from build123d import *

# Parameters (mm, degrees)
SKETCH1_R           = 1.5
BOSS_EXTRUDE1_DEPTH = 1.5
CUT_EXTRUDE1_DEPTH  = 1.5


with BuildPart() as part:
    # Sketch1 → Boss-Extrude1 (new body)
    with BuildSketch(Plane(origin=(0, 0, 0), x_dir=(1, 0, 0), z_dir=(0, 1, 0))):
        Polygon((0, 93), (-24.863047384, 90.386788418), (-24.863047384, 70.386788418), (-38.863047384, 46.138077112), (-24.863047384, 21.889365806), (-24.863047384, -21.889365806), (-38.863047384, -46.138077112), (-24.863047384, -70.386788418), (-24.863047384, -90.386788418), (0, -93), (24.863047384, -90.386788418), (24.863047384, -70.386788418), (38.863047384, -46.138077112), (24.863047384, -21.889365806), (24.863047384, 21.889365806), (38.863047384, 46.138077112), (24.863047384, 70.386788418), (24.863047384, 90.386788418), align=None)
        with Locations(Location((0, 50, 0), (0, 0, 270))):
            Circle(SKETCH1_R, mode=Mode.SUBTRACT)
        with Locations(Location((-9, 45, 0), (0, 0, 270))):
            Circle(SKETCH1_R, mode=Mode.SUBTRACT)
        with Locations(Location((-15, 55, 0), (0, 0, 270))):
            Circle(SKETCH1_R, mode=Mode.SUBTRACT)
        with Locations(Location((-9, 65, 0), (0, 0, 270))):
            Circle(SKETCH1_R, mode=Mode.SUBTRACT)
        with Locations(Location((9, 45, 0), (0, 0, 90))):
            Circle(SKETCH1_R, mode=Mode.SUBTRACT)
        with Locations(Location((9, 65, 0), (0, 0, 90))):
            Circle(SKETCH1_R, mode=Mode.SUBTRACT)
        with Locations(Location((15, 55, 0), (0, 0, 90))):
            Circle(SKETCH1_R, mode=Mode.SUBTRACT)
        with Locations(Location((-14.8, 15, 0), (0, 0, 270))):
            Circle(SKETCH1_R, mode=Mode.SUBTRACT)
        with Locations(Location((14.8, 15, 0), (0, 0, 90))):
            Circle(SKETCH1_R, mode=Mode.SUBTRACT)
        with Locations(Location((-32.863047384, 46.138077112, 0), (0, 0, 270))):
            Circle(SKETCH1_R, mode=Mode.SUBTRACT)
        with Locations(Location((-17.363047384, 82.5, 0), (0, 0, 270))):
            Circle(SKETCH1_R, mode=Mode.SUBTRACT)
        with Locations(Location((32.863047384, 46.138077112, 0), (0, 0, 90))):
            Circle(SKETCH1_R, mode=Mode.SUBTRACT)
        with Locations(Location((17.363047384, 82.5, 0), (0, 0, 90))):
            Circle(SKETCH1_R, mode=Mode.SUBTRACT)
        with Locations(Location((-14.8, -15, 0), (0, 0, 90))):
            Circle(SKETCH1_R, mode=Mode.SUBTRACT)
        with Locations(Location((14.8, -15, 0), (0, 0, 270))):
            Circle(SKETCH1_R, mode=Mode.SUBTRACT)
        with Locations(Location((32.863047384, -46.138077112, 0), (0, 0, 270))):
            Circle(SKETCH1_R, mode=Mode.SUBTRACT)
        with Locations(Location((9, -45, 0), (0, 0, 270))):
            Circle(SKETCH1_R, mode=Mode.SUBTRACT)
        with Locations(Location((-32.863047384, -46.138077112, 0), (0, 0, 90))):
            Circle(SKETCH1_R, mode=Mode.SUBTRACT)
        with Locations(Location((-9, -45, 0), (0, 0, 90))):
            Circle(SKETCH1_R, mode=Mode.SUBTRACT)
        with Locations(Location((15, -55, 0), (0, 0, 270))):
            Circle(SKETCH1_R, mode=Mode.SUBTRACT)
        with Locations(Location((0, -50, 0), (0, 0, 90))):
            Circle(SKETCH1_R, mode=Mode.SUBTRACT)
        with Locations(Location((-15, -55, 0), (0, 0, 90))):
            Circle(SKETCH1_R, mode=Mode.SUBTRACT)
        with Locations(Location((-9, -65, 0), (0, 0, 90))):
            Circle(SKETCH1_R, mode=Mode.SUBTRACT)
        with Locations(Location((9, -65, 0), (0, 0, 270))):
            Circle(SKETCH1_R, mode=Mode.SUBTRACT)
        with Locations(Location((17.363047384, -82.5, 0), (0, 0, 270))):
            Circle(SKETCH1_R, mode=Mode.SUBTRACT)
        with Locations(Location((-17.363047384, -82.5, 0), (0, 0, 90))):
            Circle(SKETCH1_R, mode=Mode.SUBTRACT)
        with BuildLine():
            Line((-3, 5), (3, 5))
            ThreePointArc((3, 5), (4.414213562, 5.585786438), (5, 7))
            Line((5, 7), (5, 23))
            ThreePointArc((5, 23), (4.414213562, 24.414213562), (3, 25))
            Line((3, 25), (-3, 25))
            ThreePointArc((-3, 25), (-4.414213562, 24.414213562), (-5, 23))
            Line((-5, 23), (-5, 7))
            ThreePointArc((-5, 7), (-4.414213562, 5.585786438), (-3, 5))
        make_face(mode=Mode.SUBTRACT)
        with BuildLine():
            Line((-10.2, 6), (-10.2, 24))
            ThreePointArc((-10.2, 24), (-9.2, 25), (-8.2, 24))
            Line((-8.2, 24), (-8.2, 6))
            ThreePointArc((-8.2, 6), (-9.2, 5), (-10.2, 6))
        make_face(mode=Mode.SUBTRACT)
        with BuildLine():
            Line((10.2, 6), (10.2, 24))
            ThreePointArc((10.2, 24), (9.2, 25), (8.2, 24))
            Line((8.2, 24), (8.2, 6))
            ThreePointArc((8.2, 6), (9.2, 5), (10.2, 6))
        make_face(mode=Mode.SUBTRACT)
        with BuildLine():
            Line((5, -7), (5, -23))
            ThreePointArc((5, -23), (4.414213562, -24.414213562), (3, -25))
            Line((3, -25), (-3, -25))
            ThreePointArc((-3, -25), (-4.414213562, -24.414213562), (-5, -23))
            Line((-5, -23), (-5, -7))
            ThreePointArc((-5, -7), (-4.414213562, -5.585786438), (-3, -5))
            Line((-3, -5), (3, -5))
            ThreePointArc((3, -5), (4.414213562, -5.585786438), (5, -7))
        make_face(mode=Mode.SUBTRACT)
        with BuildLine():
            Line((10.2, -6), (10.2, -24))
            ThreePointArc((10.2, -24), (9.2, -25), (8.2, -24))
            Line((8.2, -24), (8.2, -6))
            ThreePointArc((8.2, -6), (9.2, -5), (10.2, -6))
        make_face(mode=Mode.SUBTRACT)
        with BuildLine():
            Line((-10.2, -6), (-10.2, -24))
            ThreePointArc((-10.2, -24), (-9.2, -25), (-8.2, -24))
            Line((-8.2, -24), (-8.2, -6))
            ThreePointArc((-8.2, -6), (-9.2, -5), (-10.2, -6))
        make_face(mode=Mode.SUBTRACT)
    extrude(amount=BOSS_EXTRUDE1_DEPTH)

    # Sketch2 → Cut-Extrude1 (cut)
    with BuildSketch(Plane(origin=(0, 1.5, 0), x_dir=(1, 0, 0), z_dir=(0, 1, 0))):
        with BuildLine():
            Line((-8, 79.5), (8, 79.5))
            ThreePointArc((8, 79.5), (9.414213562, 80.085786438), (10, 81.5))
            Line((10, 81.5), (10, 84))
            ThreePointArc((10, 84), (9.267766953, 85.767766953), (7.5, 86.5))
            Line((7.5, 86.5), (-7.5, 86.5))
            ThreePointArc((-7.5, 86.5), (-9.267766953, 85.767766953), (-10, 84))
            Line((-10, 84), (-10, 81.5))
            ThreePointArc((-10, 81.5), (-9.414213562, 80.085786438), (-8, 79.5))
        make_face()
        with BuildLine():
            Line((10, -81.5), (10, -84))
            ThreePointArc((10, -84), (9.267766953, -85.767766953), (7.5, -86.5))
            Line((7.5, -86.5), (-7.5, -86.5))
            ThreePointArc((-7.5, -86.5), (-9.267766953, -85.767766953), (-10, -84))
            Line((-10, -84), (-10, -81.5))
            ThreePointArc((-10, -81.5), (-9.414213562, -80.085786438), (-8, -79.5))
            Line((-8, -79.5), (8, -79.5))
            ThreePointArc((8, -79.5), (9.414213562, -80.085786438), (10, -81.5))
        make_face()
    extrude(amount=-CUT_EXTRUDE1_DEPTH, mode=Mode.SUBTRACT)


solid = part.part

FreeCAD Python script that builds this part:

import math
import FreeCAD as App
import Part
import Sketcher
Q = App.Units.Quantity


def add_polygon(sketch, points):
    """Adds a closed chain of lines whose ends are joined by coincident constraints."""
    first, n = sketch.GeometryCount, len(points)
    for a, b in zip(points, points[1:] + points[:1]):
        sketch.addGeometry(Part.LineSegment(App.Vector(*a, 0), App.Vector(*b, 0)), False)
    for i in range(n):
        sketch.addConstraint(Sketcher.Constraint("Coincident", first + i, 2, first + (i + 1) % n, 1))

doc = App.newDocument("Part")
body = doc.addObject("PartDesign::Body", "Body")

sketch1 = doc.addObject("Sketcher::SketchObject", "Sketch")
body.addObject(sketch1)
sketch1.AttachmentSupport = (doc.XZ_Plane, [""])
sketch1.MapMode = "FlatFace"
add_polygon(sketch1, [(0, -93), (-24.9, -90.4), (-24.9, -70.4), (-38.9, -46.1), (-24.9, -21.9), (-24.9, 21.9), (-38.9, 46.1), (-24.9, 70.4), (-24.9, 90.4), (0, 93), (24.9, 90.4), (24.9, 70.4), (38.9, 46.1), (24.9, 21.9), (24.9, -21.9), (38.9, -46.1), (24.9, -70.4), (24.9, -90.4)])
sketch1.addGeometry(Part.Circle(App.Vector(-17.4, 82.5, 0), App.Vector(0, 0, 1), 1.5), False)
sketch1.addGeometry(Part.Circle(App.Vector(-32.9, 46.1, 0), App.Vector(0, 0, 1), 1.5), False)
sketch1.addGeometry(Part.Circle(App.Vector(-9, 65, 0), App.Vector(0, 0, 1), 1.5), False)
sketch1.addGeometry(Part.Circle(App.Vector(-15, 55, 0), App.Vector(0, 0, 1), 1.5), False)
sketch1.addGeometry(Part.Circle(App.Vector(-9, 45, 0), App.Vector(0, 0, 1), 1.5), False)
sketch1.addGeometry(Part.Circle(App.Vector(-14.8, 15, 0), App.Vector(0, 0, 1), 1.5), False)
sketch1.addGeometry(Part.LineSegment(App.Vector(-10.2, 24, 0), App.Vector(-10.2, 6, 0)), False)
sketch1.addGeometry(Part.ArcOfCircle(Part.Circle(App.Vector(-9.2, 6, 0), App.Vector(0, 0, 1), 1), math.radians(180), math.radians(360)), False)
sketch1.addGeometry(Part.LineSegment(App.Vector(-8.2, 6, 0), App.Vector(-8.2, 24, 0)), False)
sketch1.addGeometry(Part.ArcOfCircle(Part.Circle(App.Vector(-9.2, 24, 0), App.Vector(0, 0, 1), 1), math.radians(0), math.radians(180)), False)
sketch1.addGeometry(Part.Circle(App.Vector(9, 65, 0), App.Vector(0, 0, 1), 1.5), False)
sketch1.addGeometry(Part.Circle(App.Vector(0, 50, 0), App.Vector(0, 0, 1), 1.5), False)
sketch1.addGeometry(Part.Circle(App.Vector(15, 55, 0), App.Vector(0, 0, 1), 1.5), False)
sketch1.addGeometry(Part.Circle(App.Vector(9, 45, 0), App.Vector(0, 0, 1), 1.5), False)
sketch1.addGeometry(Part.Circle(App.Vector(17.4, 82.5, 0), App.Vector(0, 0, 1), 1.5), False)
sketch1.addGeometry(Part.Circle(App.Vector(32.9, 46.1, 0), App.Vector(0, 0, 1), 1.5), False)
sketch1.addGeometry(Part.ArcOfCircle(Part.Circle(App.Vector(3, 7, 0), App.Vector(0, 0, 1), 2), math.radians(-90), math.radians(0)), False)
sketch1.addGeometry(Part.LineSegment(App.Vector(5, 7, 0), App.Vector(5, 23, 0)), False)
sketch1.addGeometry(Part.ArcOfCircle(Part.Circle(App.Vector(3, 23, 0), App.Vector(0, 0, 1), 2), math.radians(0), math.radians(90)), False)
sketch1.addGeometry(Part.LineSegment(App.Vector(3, 25, 0), App.Vector(-3, 25, 0)), False)
sketch1.addGeometry(Part.ArcOfCircle(Part.Circle(App.Vector(-3, 23, 0), App.Vector(0, 0, 1), 2), math.radians(90), math.radians(180)), False)
sketch1.addGeometry(Part.LineSegment(App.Vector(-5, 23, 0), App.Vector(-5, 7, 0)), False)
sketch1.addGeometry(Part.ArcOfCircle(Part.Circle(App.Vector(-3, 7, 0), App.Vector(0, 0, 1), 2), math.radians(-180), math.radians(-90)), False)
sketch1.addGeometry(Part.LineSegment(App.Vector(-3, 5, 0), App.Vector(3, 5, 0)), False)
sketch1.addGeometry(Part.ArcOfCircle(Part.Circle(App.Vector(9.2, 6, 0), App.Vector(0, 0, 1), 1), math.radians(180), math.radians(360)), False)
sketch1.addGeometry(Part.LineSegment(App.Vector(10.2, 6, 0), App.Vector(10.2, 24, 0)), False)
sketch1.addGeometry(Part.ArcOfCircle(Part.Circle(App.Vector(9.2, 24, 0), App.Vector(0, 0, 1), 1), math.radians(0), math.radians(180)), False)
sketch1.addGeometry(Part.LineSegment(App.Vector(8.2, 24, 0), App.Vector(8.2, 6, 0)), False)
sketch1.addGeometry(Part.Circle(App.Vector(14.8, 15, 0), App.Vector(0, 0, 1), 1.5), False)
sketch1.addGeometry(Part.Circle(App.Vector(-14.8, -15, 0), App.Vector(0, 0, 1), 1.5), False)
sketch1.addGeometry(Part.ArcOfCircle(Part.Circle(App.Vector(-9.2, -6, 0), App.Vector(0, 0, 1), 1), math.radians(0), math.radians(180)), False)
sketch1.addGeometry(Part.LineSegment(App.Vector(-10.2, -6, 0), App.Vector(-10.2, -24, 0)), False)
sketch1.addGeometry(Part.ArcOfCircle(Part.Circle(App.Vector(-9.2, -24, 0), App.Vector(0, 0, 1), 1), math.radians(180), math.radians(360)), False)
sketch1.addGeometry(Part.LineSegment(App.Vector(-8.2, -24, 0), App.Vector(-8.2, -6, 0)), False)
sketch1.addGeometry(Part.Circle(App.Vector(-32.9, -46.1, 0), App.Vector(0, 0, 1), 1.5), False)
sketch1.addGeometry(Part.Circle(App.Vector(-17.4, -82.5, 0), App.Vector(0, 0, 1), 1.5), False)
sketch1.addGeometry(Part.Circle(App.Vector(-9, -45, 0), App.Vector(0, 0, 1), 1.5), False)
sketch1.addGeometry(Part.Circle(App.Vector(-15, -55, 0), App.Vector(0, 0, 1), 1.5), False)
sketch1.addGeometry(Part.Circle(App.Vector(-9, -65, 0), App.Vector(0, 0, 1), 1.5), False)
sketch1.addGeometry(Part.LineSegment(App.Vector(3, -5, 0), App.Vector(-3, -5, 0)), False)
sketch1.addGeometry(Part.ArcOfCircle(Part.Circle(App.Vector(-3, -7, 0), App.Vector(0, 0, 1), 2), math.radians(90), math.radians(180)), False)
sketch1.addGeometry(Part.LineSegment(App.Vector(-5, -7, 0), App.Vector(-5, -23, 0)), False)
sketch1.addGeometry(Part.ArcOfCircle(Part.Circle(App.Vector(-3, -23, 0), App.Vector(0, 0, 1), 2), math.radians(-180), math.radians(-90)), False)
sketch1.addGeometry(Part.LineSegment(App.Vector(-3, -25, 0), App.Vector(3, -25, 0)), False)
sketch1.addGeometry(Part.ArcOfCircle(Part.Circle(App.Vector(3, -23, 0), App.Vector(0, 0, 1), 2), math.radians(-90), math.radians(0)), False)
sketch1.addGeometry(Part.LineSegment(App.Vector(5, -23, 0), App.Vector(5, -7, 0)), False)
sketch1.addGeometry(Part.ArcOfCircle(Part.Circle(App.Vector(3, -7, 0), App.Vector(0, 0, 1), 2), math.radians(0), math.radians(90)), False)
sketch1.addGeometry(Part.LineSegment(App.Vector(10.2, -24, 0), App.Vector(10.2, -6, 0)), False)
sketch1.addGeometry(Part.ArcOfCircle(Part.Circle(App.Vector(9.2, -6, 0), App.Vector(0, 0, 1), 1), math.radians(0), math.radians(180)), False)
sketch1.addGeometry(Part.LineSegment(App.Vector(8.2, -6, 0), App.Vector(8.2, -24, 0)), False)
sketch1.addGeometry(Part.ArcOfCircle(Part.Circle(App.Vector(9.2, -24, 0), App.Vector(0, 0, 1), 1), math.radians(180), math.radians(360)), False)
sketch1.addGeometry(Part.Circle(App.Vector(14.8, -15, 0), App.Vector(0, 0, 1), 1.5), False)
sketch1.addGeometry(Part.Circle(App.Vector(0, -50, 0), App.Vector(0, 0, 1), 1.5), False)
sketch1.addGeometry(Part.Circle(App.Vector(9, -45, 0), App.Vector(0, 0, 1), 1.5), False)
sketch1.addGeometry(Part.Circle(App.Vector(15, -55, 0), App.Vector(0, 0, 1), 1.5), False)
sketch1.addGeometry(Part.Circle(App.Vector(9, -65, 0), App.Vector(0, 0, 1), 1.5), False)
sketch1.addGeometry(Part.Circle(App.Vector(32.9, -46.1, 0), App.Vector(0, 0, 1), 1.5), False)
sketch1.addGeometry(Part.Circle(App.Vector(17.4, -82.5, 0), App.Vector(0, 0, 1), 1.5), False)
sketch1.addConstraint([
    Sketcher.Constraint("Tangent", 24, 2, 25, 1),
    Sketcher.Constraint("Tangent", 25, 2, 26, 1),
    Sketcher.Constraint("Tangent", 26, 2, 27, 1),
    Sketcher.Constraint("Tangent", 27, 2, 24, 1),
    Sketcher.Constraint("Tangent", 34, 2, 35, 1),
    Sketcher.Constraint("Tangent", 35, 2, 36, 1),
    Sketcher.Constraint("Tangent", 36, 2, 37, 1),
    Sketcher.Constraint("Tangent", 37, 2, 38, 1),
    Sketcher.Constraint("Tangent", 38, 2, 39, 1),
    Sketcher.Constraint("Tangent", 39, 2, 40, 1),
    Sketcher.Constraint("Tangent", 40, 2, 41, 1),
    Sketcher.Constraint("Tangent", 41, 2, 34, 1),
    Sketcher.Constraint("Tangent", 42, 2, 43, 1),
    Sketcher.Constraint("Tangent", 43, 2, 44, 1),
    Sketcher.Constraint("Tangent", 44, 2, 45, 1),
    Sketcher.Constraint("Tangent", 45, 2, 42, 1),
    Sketcher.Constraint("Tangent", 48, 2, 49, 1),
    Sketcher.Constraint("Tangent", 49, 2, 50, 1),
    Sketcher.Constraint("Tangent", 50, 2, 51, 1),
    Sketcher.Constraint("Tangent", 51, 2, 48, 1),
    Sketcher.Constraint("Tangent", 57, 2, 58, 1),
    Sketcher.Constraint("Tangent", 58, 2, 59, 1),
    Sketcher.Constraint("Tangent", 59, 2, 60, 1),
    Sketcher.Constraint("Tangent", 60, 2, 61, 1),
    Sketcher.Constraint("Tangent", 61, 2, 62, 1),
    Sketcher.Constraint("Tangent", 62, 2, 63, 1),
    Sketcher.Constraint("Tangent", 63, 2, 64, 1),
    Sketcher.Constraint("Tangent", 64, 2, 57, 1),
    Sketcher.Constraint("Tangent", 65, 2, 66, 1),
    Sketcher.Constraint("Tangent", 66, 2, 67, 1),
    Sketcher.Constraint("Tangent", 67, 2, 68, 1),
    Sketcher.Constraint("Tangent", 68, 2, 65, 1),
    Sketcher.Constraint("Vertical", 1),
    Sketcher.Constraint("Vertical", 4),
    Sketcher.Constraint("Vertical", 7),
    Sketcher.Constraint("Vertical", 10),
    Sketcher.Constraint("Vertical", 13),
    Sketcher.Constraint("Vertical", 16),
    Sketcher.Constraint("Vertical", 24),
    Sketcher.Constraint("Vertical", 26),
    Sketcher.Constraint("Vertical", 35),
    Sketcher.Constraint("Horizontal", 37),
    Sketcher.Constraint("Vertical", 39),
    Sketcher.Constraint("Horizontal", 41),
    Sketcher.Constraint("Vertical", 43),
    Sketcher.Constraint("Vertical", 45),
    Sketcher.Constraint("Vertical", 49),
    Sketcher.Constraint("Vertical", 51),
    Sketcher.Constraint("Horizontal", 57),
    Sketcher.Constraint("Vertical", 59),
    Sketcher.Constraint("Horizontal", 61),
    Sketcher.Constraint("Vertical", 63),
    Sketcher.Constraint("Vertical", 65),
    Sketcher.Constraint("Vertical", 67),
    Sketcher.Constraint("Equal", 18, 19),
    Sketcher.Constraint("Equal", 19, 20),
    Sketcher.Constraint("Equal", 20, 21),
    Sketcher.Constraint("Equal", 21, 22),
    Sketcher.Constraint("Equal", 22, 23),
    Sketcher.Constraint("Equal", 23, 28),
    Sketcher.Constraint("Equal", 28, 29),
    Sketcher.Constraint("Equal", 29, 30),
    Sketcher.Constraint("Equal", 30, 31),
    Sketcher.Constraint("Equal", 31, 32),
    Sketcher.Constraint("Equal", 32, 33),
    Sketcher.Constraint("Equal", 34, 36),
    Sketcher.Constraint("Equal", 36, 38),
    Sketcher.Constraint("Equal", 38, 40),
    Sketcher.Constraint("Equal", 27, 42),
    Sketcher.Constraint("Equal", 33, 46),
    Sketcher.Constraint("Equal", 46, 47),
    Sketcher.Constraint("Equal", 44, 48),
    Sketcher.Constraint("Equal", 47, 52),
    Sketcher.Constraint("Equal", 52, 53),
    Sketcher.Constraint("Equal", 53, 54),
    Sketcher.Constraint("Equal", 54, 55),
    Sketcher.Constraint("Equal", 55, 56),
    Sketcher.Constraint("Equal", 40, 58),
    Sketcher.Constraint("Equal", 58, 60),
    Sketcher.Constraint("Equal", 60, 62),
    Sketcher.Constraint("Equal", 62, 64),
    Sketcher.Constraint("Equal", 50, 66),
    Sketcher.Constraint("Equal", 56, 69),
    Sketcher.Constraint("Equal", 69, 70),
    Sketcher.Constraint("Equal", 70, 71),
    Sketcher.Constraint("Equal", 71, 72),
    Sketcher.Constraint("Equal", 72, 73),
    Sketcher.Constraint("Equal", 73, 74),
    Sketcher.Constraint("Equal", 74, 75),
    Sketcher.Constraint("Symmetric", 46, 3, 47, 3, -1, 1),
    Sketcher.Constraint("Symmetric", 42, 3, 48, 3, -1, 1),
    Sketcher.Constraint("Symmetric", 33, 3, 52, 3, -1, 1),
    Sketcher.Constraint("Symmetric", 32, 3, 53, 3, -1, 1),
    Sketcher.Constraint("Symmetric", 31, 3, 54, 3, -1, 1),
    Sketcher.Constraint("Symmetric", 30, 3, 55, 3, -1, 1),
    Sketcher.Constraint("Symmetric", 28, 3, 56, 3, -1, 1),
    Sketcher.Constraint("Symmetric", 34, 3, 58, 3, -1, 1),
    Sketcher.Constraint("Symmetric", 38, 3, 62, 3, -1, 1),
    Sketcher.Constraint("Symmetric", 25, 3, 66, 3, -1, 1),
    Sketcher.Constraint("Symmetric", 23, 3, 69, 3, -1, 1),
    Sketcher.Constraint("Symmetric", 29, 3, 70, 3, -1, 1),
    Sketcher.Constraint("Symmetric", 22, 3, 71, 3, -1, 1),
    Sketcher.Constraint("Symmetric", 21, 3, 72, 3, -1, 1),
    Sketcher.Constraint("Symmetric", 20, 3, 73, 3, -1, 1),
    Sketcher.Constraint("Symmetric", 19, 3, 74, 3, -1, 1),
    Sketcher.Constraint("Symmetric", 18, 3, 75, 3, -1, 1),
    Sketcher.Constraint("Symmetric", 0, 2, 9, 2, -1, 1),
    Sketcher.Constraint("Symmetric", 2, 2, 11, 2, -1, 1),
    Sketcher.Constraint("Symmetric", 3, 2, 12, 2, -1, 1),
    Sketcher.Constraint("Symmetric", 5, 2, 14, 2, -1, 1),
    Sketcher.Constraint("Symmetric", 6, 2, 15, 2, -1, 1),
    Sketcher.Constraint("Symmetric", 8, 2, 17, 2, -1, 1),
    Sketcher.Constraint("Symmetric", 20, 3, 28, 3, -2),
    Sketcher.Constraint("Symmetric", 21, 3, 30, 3, -2),
    Sketcher.Constraint("Symmetric", 22, 3, 31, 3, -2),
    Sketcher.Constraint("Symmetric", 18, 3, 32, 3, -2),
    Sketcher.Constraint("Symmetric", 19, 3, 33, 3, -2),
    Sketcher.Constraint("Symmetric", 25, 3, 42, 3, -2),
    Sketcher.Constraint("Symmetric", 23, 3, 46, 3, -2),
    Sketcher.Constraint("Symmetric", 7, 2, 9, 2, -2),
    Sketcher.Constraint("Symmetric", 5, 2, 11, 2, -2),
    Sketcher.Constraint("PointOnObject", 29, 3, -2),
    Sketcher.Constraint("PointOnObject", 8, 2, -2),
    Sketcher.Constraint("Parallel", 2, 5),
    Sketcher.Constraint("Parallel", 3, 6),
    Sketcher.Constraint("Parallel", 5, 11),
    Sketcher.Constraint("Parallel", 11, 14),
    Sketcher.Constraint("Parallel", 8, 17),
    Sketcher.Constraint("Horizontal", 27, 3, 44, 3),
    Sketcher.Constraint("Horizontal", 50, 3, 68, 3),
    Sketcher.Constraint("Horizontal", 74, 3, 2, 2),
    Sketcher.Constraint("Horizontal", 6, 2, 10, 2),
    Sketcher.Constraint("Vertical", 20, 3, 22, 3),
    Sketcher.Constraint("Vertical", 40, 3, 58, 3),
    Sketcher.Constraint("Vertical", 1, 2, 3, 2),
    Sketcher.Constraint("Equal", 45, 49),
    Sketcher.Constraint("Diameter", 18, Q("3 mm")),
    Sketcher.Constraint("Radius", 25, Q("1 mm")),
    Sketcher.Constraint("Radius", 34, Q("2 mm")),
    Sketcher.Constraint("DistanceX", 37, 2, 37, 1, Q("6 mm")),
    Sketcher.Constraint("DistanceY", 1, 1, 1, 2, Q("20 mm")),
    Sketcher.Constraint("DistanceY", 24, 2, 24, 1, Q("18 mm")),
    Sketcher.Constraint("DistanceY", 35, 1, 35, 2, Q("16 mm")),
    Sketcher.Constraint("Angle", 0, Q("174 deg")),
    Sketcher.Constraint("Angle", 2, Q("120 deg")),
    Sketcher.Constraint("Distance", 0, Q("25 mm")),
    Sketcher.Constraint("Distance", 2, Q("28 mm")),
    Sketcher.Constraint("DistanceX", 20, 3, -1, 1, Q("9 mm")),
    Sketcher.Constraint("DistanceY", -1, 1, 20, 3, Q("65 mm")),
    Sketcher.Constraint("DistanceX", 21, 3, -1, 1, Q("15 mm")),
    Sketcher.Constraint("DistanceY", -1, 1, 21, 3, Q("55 mm")),
    Sketcher.Constraint("DistanceY", -1, 1, 22, 3, Q("45 mm")),
    Sketcher.Constraint("DistanceY", -1, 1, 23, 3, Q("15 mm")),
    Sketcher.Constraint("DistanceY", -1, 1, 25, 3, Q("6 mm")),
    Sketcher.Constraint("DistanceY", -1, 1, 29, 3, Q("50 mm")),
    Sketcher.Constraint("DistanceY", -1, 1, 34, 3, Q("7 mm")),
    Sketcher.Constraint("DistanceY", -1, 1, 8, 2, Q("93 mm")),
    Sketcher.Constraint("DistanceY", -1, 1, 18, 3, Q("82.5 mm")),
    Sketcher.Constraint("DistanceX", 23, 3, -1, 1, Q("14.8 mm")),
    Sketcher.Constraint("DistanceX", 25, 3, -1, 1, Q("9.2 mm")),
    Sketcher.Constraint("DistanceX", 18, 3, -1, 1, Q("17.363047 mm")),
    Sketcher.Constraint("DistanceX", 19, 3, -1, 1, Q("32.863047 mm")),
])
pad1 = doc.addObject("PartDesign::Pad", "Pad")
body.addObject(pad1)
pad1.Profile = sketch1
pad1.Length = 1.5
pad1.Reversed = True

sketch2 = doc.addObject("Sketcher::SketchObject", "Sketch001")
body.addObject(sketch2)
sketch2.AttachmentSupport = (doc.XZ_Plane, [""])
sketch2.MapMode = "FlatFace"
sketch2.AttachmentOffset = App.Placement(App.Vector(0, 0, -1.5), App.Rotation())
sketch2.addGeometry([
    Part.LineSegment(App.Vector(-8, -79.5, 0), App.Vector(8, -79.5, 0)),
    Part.ArcOfCircle(Part.Circle(App.Vector(8, -81.5, 0), App.Vector(0, 0, 1), 2), math.radians(0), math.radians(90)),
    Part.LineSegment(App.Vector(10, -81.5, 0), App.Vector(10, -84, 0)),
    Part.ArcOfCircle(Part.Circle(App.Vector(7.5, -84, 0), App.Vector(0, 0, 1), 2.5), math.radians(-90), math.radians(0)),
    Part.LineSegment(App.Vector(7.5, -86.5, 0), App.Vector(-7.5, -86.5, 0)),
    Part.ArcOfCircle(Part.Circle(App.Vector(-7.5, -84, 0), App.Vector(0, 0, 1), 2.5), math.radians(180), math.radians(270)),
    Part.LineSegment(App.Vector(-10, -84, 0), App.Vector(-10, -81.5, 0)),
    Part.ArcOfCircle(Part.Circle(App.Vector(-8, -81.5, 0), App.Vector(0, 0, 1), 2), math.radians(90), math.radians(180)),
    Part.LineSegment(App.Vector(10, 84, 0), App.Vector(10, 81.5, 0)),
    Part.ArcOfCircle(Part.Circle(App.Vector(8, 81.5, 0), App.Vector(0, 0, 1), 2), math.radians(-90), math.radians(0)),
    Part.LineSegment(App.Vector(8, 79.5, 0), App.Vector(-8, 79.5, 0)),
    Part.ArcOfCircle(Part.Circle(App.Vector(-8, 81.5, 0), App.Vector(0, 0, 1), 2), math.radians(-180), math.radians(-90)),
    Part.LineSegment(App.Vector(-10, 81.5, 0), App.Vector(-10, 84, 0)),
    Part.ArcOfCircle(Part.Circle(App.Vector(-7.5, 84, 0), App.Vector(0, 0, 1), 2.5), math.radians(90), math.radians(180)),
    Part.LineSegment(App.Vector(-7.5, 86.5, 0), App.Vector(7.5, 86.5, 0)),
    Part.ArcOfCircle(Part.Circle(App.Vector(7.5, 84, 0), App.Vector(0, 0, 1), 2.5), math.radians(0), math.radians(90)),
], False)
sketch2.addConstraint([
    Sketcher.Constraint("Tangent", 0, 2, 1, 2),
    Sketcher.Constraint("Tangent", 1, 1, 2, 1),
    Sketcher.Constraint("Tangent", 2, 2, 3, 2),
    Sketcher.Constraint("Tangent", 3, 1, 4, 1),
    Sketcher.Constraint("Tangent", 4, 2, 5, 2),
    Sketcher.Constraint("Tangent", 5, 1, 6, 1),
    Sketcher.Constraint("Tangent", 6, 2, 7, 2),
    Sketcher.Constraint("Tangent", 7, 1, 0, 1),
    Sketcher.Constraint("Tangent", 8, 2, 9, 2),
    Sketcher.Constraint("Tangent", 9, 1, 10, 1),
    Sketcher.Constraint("Tangent", 10, 2, 11, 2),
    Sketcher.Constraint("Tangent", 11, 1, 12, 1),
    Sketcher.Constraint("Tangent", 12, 2, 13, 2),
    Sketcher.Constraint("Tangent", 13, 1, 14, 1),
    Sketcher.Constraint("Tangent", 14, 2, 15, 2),
    Sketcher.Constraint("Tangent", 15, 1, 8, 1),
    Sketcher.Constraint("Horizontal", 0),
    Sketcher.Constraint("Vertical", 2),
    Sketcher.Constraint("Horizontal", 4),
    Sketcher.Constraint("Vertical", 6),
    Sketcher.Constraint("Vertical", 8),
    Sketcher.Constraint("Horizontal", 10),
    Sketcher.Constraint("Vertical", 12),
    Sketcher.Constraint("Horizontal", 14),
    Sketcher.Constraint("Equal", 3, 5),
    Sketcher.Constraint("Equal", 1, 7),
    Sketcher.Constraint("Equal", 7, 9),
    Sketcher.Constraint("Equal", 9, 11),
    Sketcher.Constraint("Equal", 5, 13),
    Sketcher.Constraint("Equal", 13, 15),
    Sketcher.Constraint("Symmetric", 7, 3, 9, 3, -1, 1),
    Sketcher.Constraint("Symmetric", 3, 3, 13, 3, -1, 1),
    Sketcher.Constraint("Vertical", 1, 3, 9, 3),
    Sketcher.Constraint("Radius", 1, Q("2 mm")),
    Sketcher.Constraint("Radius", 3, Q("2.5 mm")),
    Sketcher.Constraint("DistanceX", 0, 1, 0, 2, Q("16 mm")),
    Sketcher.Constraint("DistanceY", 2, 2, 2, 1, Q("2.5 mm")),
    Sketcher.Constraint("DistanceY", 3, 3, -1, 1, Q("84 mm")),
])
pocket1 = doc.addObject("PartDesign::Pocket", "Pocket")
body.addObject(pocket1)
pocket1.Profile = sketch2
pocket1.Length = 1.5
pocket1.Reversed = True

doc.recompute()
